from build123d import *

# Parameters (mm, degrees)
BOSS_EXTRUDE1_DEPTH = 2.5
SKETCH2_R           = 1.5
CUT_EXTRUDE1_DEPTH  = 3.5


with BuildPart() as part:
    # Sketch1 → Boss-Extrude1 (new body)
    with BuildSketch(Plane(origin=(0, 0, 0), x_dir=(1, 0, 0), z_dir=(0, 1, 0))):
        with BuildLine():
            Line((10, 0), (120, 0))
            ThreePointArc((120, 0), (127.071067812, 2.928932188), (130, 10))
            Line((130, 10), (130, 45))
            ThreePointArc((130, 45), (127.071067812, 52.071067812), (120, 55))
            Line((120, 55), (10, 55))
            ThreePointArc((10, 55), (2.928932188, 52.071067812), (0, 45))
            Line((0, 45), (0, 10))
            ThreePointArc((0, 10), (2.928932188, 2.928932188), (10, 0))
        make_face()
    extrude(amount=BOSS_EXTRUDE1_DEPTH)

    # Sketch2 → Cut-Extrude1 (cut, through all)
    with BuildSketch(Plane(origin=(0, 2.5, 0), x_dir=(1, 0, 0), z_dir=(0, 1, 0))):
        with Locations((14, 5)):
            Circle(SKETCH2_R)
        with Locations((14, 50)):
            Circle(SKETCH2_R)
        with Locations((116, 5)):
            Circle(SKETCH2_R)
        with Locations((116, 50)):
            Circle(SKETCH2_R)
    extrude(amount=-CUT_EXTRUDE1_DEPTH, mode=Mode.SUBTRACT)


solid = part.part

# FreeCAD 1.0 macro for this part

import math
import FreeCAD as App
import Part
import Sketcher
from FreeCAD import Vector

doc = App.newDocument("Part")
body = doc.addObject("PartDesign::Body", "Body")

# Sketch on XZ plane
sketch1 = body.newObject("Sketcher::SketchObject", "Sketch")
sketch1.AttachmentSupport = (doc.getObject("XZ_Plane"), [""])
sketch1.MapMode = "FlatFace"
sketch1.addGeometry([
    Part.LineSegment(Vector(10, 0, 0), Vector(120, 0, 0)),  # 0
    Part.ArcOfCircle(Part.Circle(Vector(120, -10, 0), Vector(0, 0, 1), 10), math.radians(0), math.radians(90)),  # 1
    Part.LineSegment(Vector(130, -10, 0), Vector(130, -45, 0)),  # 2
    Part.ArcOfCircle(Part.Circle(Vector(120, -45, 0), Vector(0, 0, 1), 10), math.radians(-90), math.radians(0)),  # 3
    Part.LineSegment(Vector(120, -55, 0), Vector(10, -55, 0)),  # 4
    Part.ArcOfCircle(Part.Circle(Vector(10, -45, 0), Vector(0, 0, 1), 10), math.radians(180), math.radians(270)),  # 5
    Part.LineSegment(Vector(0, -45, 0), Vector(0, -10, 0)),  # 6
    Part.ArcOfCircle(Part.Circle(Vector(10, -10, 0), Vector(0, 0, 1), 10), math.radians(90), math.radians(180)),  # 7
], False)
sketch1.addConstraint([
    Sketcher.Constraint("Tangent", 0, 2, 1, 2),
    Sketcher.Constraint("Tangent", 1, 1, 2, 1),
    Sketcher.Constraint("Tangent", 2, 2, 3, 2),
    Sketcher.Constraint("Tangent", 3, 1, 4, 1),
    Sketcher.Constraint("Tangent", 4, 2, 5, 2),
    Sketcher.Constraint("Tangent", 5, 1, 6, 1),
    Sketcher.Constraint("Tangent", 6, 2, 7, 2),
    Sketcher.Constraint("Tangent", 7, 1, 0, 1),
    Sketcher.Constraint("Horizontal", 0),
    Sketcher.Constraint("Vertical", 2),
    Sketcher.Constraint("Horizontal", 4),
    Sketcher.Constraint("Vertical", 6),
    Sketcher.Constraint("Equal", 1, 3),
    Sketcher.Constraint("Equal", 3, 5),
    Sketcher.Constraint("Equal", 5, 7),
    Sketcher.Constraint("PointOnObject", 0, 2, -1),
    Sketcher.Constraint("PointOnObject", 5, 1, -2),
    Sketcher.Constraint("Radius", 1, 10.0),
    Sketcher.Constraint("DistanceX", 0, 1, 0, 2, 110.0),
    Sketcher.Constraint("DistanceY", 2, 2, 2, 1, 35.0),
])
pad1 = body.newObject("PartDesign::Pad", "Pad")
pad1.Profile = sketch1
pad1.Length = 2.5
pad1.Reversed = True

# Sketch on XZ plane
sketch2 = body.newObject("Sketcher::SketchObject", "Sketch001")
sketch2.AttachmentSupport = (doc.getObject("XZ_Plane"), [""])
sketch2.MapMode = "FlatFace"
sketch2.AttachmentOffset = App.Placement(Vector(0, 0, -2.5), App.Rotation())
sketch2.addGeometry([
    Part.Circle(Vector(14, -5, 0), Vector(0, 0, 1), 1.5),
    Part.Circle(Vector(14, -50, 0), Vector(0, 0, 1), 1.5),
    Part.Circle(Vector(116, -5, 0), Vector(0, 0, 1), 1.5),
    Part.Circle(Vector(116, -50, 0), Vector(0, 0, 1), 1.5),
], False)
sketch2.addConstraint([
    Sketcher.Constraint("Equal", 0, 1),
    Sketcher.Constraint("Equal", 1, 2),
    Sketcher.Constraint("Equal", 2, 3),
    Sketcher.Constraint("Horizontal", 0, 3, 2, 3),
    Sketcher.Constraint("Horizontal", 1, 3, 3, 3),
    Sketcher.Constraint("Vertical", 0, 3, 1, 3),
    Sketcher.Constraint("Vertical", 2, 3, 3, 3),
    Sketcher.Constraint("Diameter", 0, 3.0),
    Sketcher.Constraint("DistanceX", -1, 1, 0, 3, 14.0),
    Sketcher.Constraint("DistanceY", 0, 3, -1, 1, 5.0),
    Sketcher.Constraint("DistanceY", 1, 3, -1, 1, 50.0),
    Sketcher.Constraint("DistanceX", -1, 1, 2, 3, 116.0),
])
pocket1 = body.newObject("PartDesign::Pocket", "Pocket")
pocket1.Profile = sketch2
pocket1.Type = "ThroughAll"
pocket1.Reversed = True

doc.recompute()
